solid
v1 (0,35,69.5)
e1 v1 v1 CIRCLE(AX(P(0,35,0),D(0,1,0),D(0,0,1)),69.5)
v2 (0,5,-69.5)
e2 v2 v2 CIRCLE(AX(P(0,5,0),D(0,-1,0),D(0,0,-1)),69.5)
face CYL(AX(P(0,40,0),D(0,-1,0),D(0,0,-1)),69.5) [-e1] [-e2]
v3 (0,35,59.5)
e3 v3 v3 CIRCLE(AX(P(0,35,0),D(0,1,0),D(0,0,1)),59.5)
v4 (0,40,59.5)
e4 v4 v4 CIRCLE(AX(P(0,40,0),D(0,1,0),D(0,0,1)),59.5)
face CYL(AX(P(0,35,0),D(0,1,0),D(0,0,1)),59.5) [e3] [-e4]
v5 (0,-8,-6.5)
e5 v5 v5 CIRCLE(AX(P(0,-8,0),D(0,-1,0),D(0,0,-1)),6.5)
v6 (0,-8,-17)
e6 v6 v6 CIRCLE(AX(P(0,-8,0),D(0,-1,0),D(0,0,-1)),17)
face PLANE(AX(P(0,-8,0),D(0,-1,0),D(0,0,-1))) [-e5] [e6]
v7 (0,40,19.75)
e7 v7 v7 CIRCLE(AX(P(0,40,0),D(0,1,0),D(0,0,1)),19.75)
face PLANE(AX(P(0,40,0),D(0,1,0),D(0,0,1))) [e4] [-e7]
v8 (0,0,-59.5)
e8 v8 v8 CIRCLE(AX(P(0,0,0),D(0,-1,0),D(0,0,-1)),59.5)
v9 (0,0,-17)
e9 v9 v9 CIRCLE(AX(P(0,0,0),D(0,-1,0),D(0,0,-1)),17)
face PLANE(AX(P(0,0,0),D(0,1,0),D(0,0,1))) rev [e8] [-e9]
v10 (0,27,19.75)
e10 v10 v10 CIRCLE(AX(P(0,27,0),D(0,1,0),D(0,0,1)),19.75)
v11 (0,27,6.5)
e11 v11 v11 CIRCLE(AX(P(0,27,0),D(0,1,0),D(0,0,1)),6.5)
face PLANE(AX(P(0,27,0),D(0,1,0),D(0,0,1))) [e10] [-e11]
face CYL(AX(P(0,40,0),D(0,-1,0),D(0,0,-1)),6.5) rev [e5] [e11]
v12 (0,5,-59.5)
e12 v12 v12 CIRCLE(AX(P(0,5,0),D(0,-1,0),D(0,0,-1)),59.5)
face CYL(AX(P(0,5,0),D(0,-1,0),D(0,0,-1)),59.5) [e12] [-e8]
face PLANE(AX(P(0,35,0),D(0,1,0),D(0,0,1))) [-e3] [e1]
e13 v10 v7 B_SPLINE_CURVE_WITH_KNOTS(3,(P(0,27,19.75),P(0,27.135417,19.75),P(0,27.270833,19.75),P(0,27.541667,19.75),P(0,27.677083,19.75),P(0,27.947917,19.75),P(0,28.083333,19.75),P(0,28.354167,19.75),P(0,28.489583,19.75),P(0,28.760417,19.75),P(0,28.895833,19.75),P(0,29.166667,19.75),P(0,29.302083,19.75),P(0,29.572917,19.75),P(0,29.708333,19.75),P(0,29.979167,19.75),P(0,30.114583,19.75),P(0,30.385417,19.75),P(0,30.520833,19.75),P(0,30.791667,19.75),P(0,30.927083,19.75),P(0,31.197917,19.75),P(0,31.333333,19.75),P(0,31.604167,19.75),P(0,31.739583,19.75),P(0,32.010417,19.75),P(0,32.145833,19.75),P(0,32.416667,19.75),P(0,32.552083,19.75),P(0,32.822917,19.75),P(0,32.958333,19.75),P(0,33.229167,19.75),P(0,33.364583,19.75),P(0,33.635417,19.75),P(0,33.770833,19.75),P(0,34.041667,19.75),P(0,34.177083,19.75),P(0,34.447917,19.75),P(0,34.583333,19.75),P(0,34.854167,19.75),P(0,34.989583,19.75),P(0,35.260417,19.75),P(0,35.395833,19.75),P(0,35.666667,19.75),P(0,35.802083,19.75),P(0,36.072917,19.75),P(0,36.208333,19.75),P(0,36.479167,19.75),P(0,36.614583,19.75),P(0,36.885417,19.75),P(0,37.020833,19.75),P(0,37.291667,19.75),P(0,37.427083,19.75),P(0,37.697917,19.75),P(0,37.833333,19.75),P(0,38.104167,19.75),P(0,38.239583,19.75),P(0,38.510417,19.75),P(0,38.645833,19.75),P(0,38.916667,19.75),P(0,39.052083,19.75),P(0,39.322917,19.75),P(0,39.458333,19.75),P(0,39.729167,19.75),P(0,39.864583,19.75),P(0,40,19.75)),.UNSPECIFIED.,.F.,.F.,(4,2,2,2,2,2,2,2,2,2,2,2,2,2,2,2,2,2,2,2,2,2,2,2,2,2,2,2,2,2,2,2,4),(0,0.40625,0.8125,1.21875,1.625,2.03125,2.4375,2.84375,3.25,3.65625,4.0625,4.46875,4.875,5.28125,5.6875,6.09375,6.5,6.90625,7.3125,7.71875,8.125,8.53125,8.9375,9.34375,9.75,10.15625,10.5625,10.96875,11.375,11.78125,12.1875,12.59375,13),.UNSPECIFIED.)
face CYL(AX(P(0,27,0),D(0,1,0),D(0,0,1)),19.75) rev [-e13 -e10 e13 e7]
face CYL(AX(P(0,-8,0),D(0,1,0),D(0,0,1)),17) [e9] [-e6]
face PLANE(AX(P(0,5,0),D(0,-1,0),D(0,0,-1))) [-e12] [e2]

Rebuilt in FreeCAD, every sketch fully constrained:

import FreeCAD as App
import Part
import Sketcher

V = App.Vector
Q = App.Units.Quantity

doc = App.newDocument("Part")
body = doc.addObject("PartDesign::Body", "Body")

sketch1 = body.newObject("Sketcher::SketchObject", "Sketch")
sketch1.AttachmentSupport = (doc.getObject("XZ_Plane"), [""])
sketch1.MapMode = "FlatFace"
sketch1.addGeometry(Part.Circle(V(0, 0, 0), V(0, 0, 1), 69.5), False)
sketch1.addConstraint(Sketcher.Constraint("Coincident", 0, 3, -1, 1))
sketch1.addConstraint(Sketcher.Constraint("Diameter", 0, Q("139 mm")))
pad1 = body.newObject("PartDesign::Pad", "Pad")
pad1.Profile = sketch1
pad1.Length = 40
pad1.Reversed = True

sketch2 = body.newObject("Sketcher::SketchObject", "Sketch001")
sketch2.AttachmentSupport = (doc.getObject("XZ_Plane"), [""])
sketch2.MapMode = "FlatFace"
sketch2.AttachmentOffset = App.Placement(V(0, 0, -35), App.Rotation())
sketch2.addGeometry(Part.Circle(V(0, 0, 0), V(0, 0, 1), 69.5), False)
sketch2.addGeometry(Part.Circle(V(0, 0, 0), V(0, 0, 1), 59.5), False)
sketch2.addConstraint(Sketcher.Constraint("Coincident", 0, 3, -1, 1))
sketch2.addConstraint(Sketcher.Constraint("Coincident", 1, 3, -1, 1))
sketch2.addConstraint(Sketcher.Constraint("Diameter", 0, Q("139 mm")))
sketch2.addConstraint(Sketcher.Constraint("Diameter", 1, Q("119 mm")))
pocket1 = body.newObject("PartDesign::Pocket", "Pocket")
pocket1.Profile = sketch2
pocket1.Length = 5

sketch3 = body.newObject("Sketcher::SketchObject", "Sketch002")
sketch3.AttachmentSupport = (doc.getObject("XZ_Plane"), [""])
sketch3.MapMode = "FlatFace"
sketch3.addGeometry(Part.Circle(V(0, 0, 0), V(0, 0, 1), 69.5), False)
sketch3.addGeometry(Part.Circle(V(0, 0, 0), V(0, 0, 1), 59.5), False)
sketch3.addConstraint(Sketcher.Constraint("Coincident", 0, 3, -1, 1))
sketch3.addConstraint(Sketcher.Constraint("Coincident", 1, 3, -1, 1))
sketch3.addConstraint(Sketcher.Constraint("Diameter", 0, Q("139 mm")))
sketch3.addConstraint(Sketcher.Constraint("Diameter", 1, Q("119 mm")))
pocket2 = body.newObject("PartDesign::Pocket", "Pocket001")
pocket2.Profile = sketch3
pocket2.Length = 5

sketch4 = body.newObject("Sketcher::SketchObject", "Sketch003")
sketch4.AttachmentSupport = (doc.getObject("XZ_Plane"), [""])
sketch4.MapMode = "FlatFace"
sketch4.AttachmentOffset = App.Placement(V(0, 0, -40), App.Rotation())
sketch4.addGeometry(Part.Circle(V(0, 0, 0), V(0, 0, 1), 19.75), False)
sketch4.addConstraint(Sketcher.Constraint("Coincident", 0, 3, -1, 1))
sketch4.addConstraint(Sketcher.Constraint("Diameter", 0, Q("39.5 mm")))
pocket3 = body.newObject("PartDesign::Pocket", "Pocket002")
pocket3.Profile = sketch4
pocket3.Length = 13
pocket3.Reversed = True

sketch5 = body.newObject("Sketcher::SketchObject", "Sketch004")
sketch5.AttachmentSupport = (doc.getObject("XZ_Plane"), [""])
sketch5.MapMode = "FlatFace"
sketch5.addGeometry(Part.Circle(V(0, 0, 0), V(0, 0, 1), 17), False)
sketch5.addConstraint(Sketcher.Constraint("Coincident", 0, 3, -1, 1))
sketch5.addConstraint(Sketcher.Constraint("Diameter", 0, Q("34 mm")))
pad2 = body.newObject("PartDesign::Pad", "Pad001")
pad2.Profile = sketch5
pad2.Length = 8

sketch6 = body.newObject("Sketcher::SketchObject", "Sketch005")
sketch6.AttachmentSupport = (doc.getObject("XZ_Plane"), [""])
sketch6.MapMode = "FlatFace"
sketch6.AttachmentOffset = App.Placement(V(0, 0, 8), App.Rotation())
sketch6.addGeometry(Part.Circle(V(0, 0, 0), V(0, 0, 1), 6.5), False)
sketch6.addConstraint(Sketcher.Constraint("Coincident", 0, 3, -1, 1))
sketch6.addConstraint(Sketcher.Constraint("Diameter", 0, Q("13 mm")))
pocket4 = body.newObject("PartDesign::Pocket", "Pocket003")
pocket4.Profile = sketch6
pocket4.Type = "ThroughAll"

doc.recompute()
